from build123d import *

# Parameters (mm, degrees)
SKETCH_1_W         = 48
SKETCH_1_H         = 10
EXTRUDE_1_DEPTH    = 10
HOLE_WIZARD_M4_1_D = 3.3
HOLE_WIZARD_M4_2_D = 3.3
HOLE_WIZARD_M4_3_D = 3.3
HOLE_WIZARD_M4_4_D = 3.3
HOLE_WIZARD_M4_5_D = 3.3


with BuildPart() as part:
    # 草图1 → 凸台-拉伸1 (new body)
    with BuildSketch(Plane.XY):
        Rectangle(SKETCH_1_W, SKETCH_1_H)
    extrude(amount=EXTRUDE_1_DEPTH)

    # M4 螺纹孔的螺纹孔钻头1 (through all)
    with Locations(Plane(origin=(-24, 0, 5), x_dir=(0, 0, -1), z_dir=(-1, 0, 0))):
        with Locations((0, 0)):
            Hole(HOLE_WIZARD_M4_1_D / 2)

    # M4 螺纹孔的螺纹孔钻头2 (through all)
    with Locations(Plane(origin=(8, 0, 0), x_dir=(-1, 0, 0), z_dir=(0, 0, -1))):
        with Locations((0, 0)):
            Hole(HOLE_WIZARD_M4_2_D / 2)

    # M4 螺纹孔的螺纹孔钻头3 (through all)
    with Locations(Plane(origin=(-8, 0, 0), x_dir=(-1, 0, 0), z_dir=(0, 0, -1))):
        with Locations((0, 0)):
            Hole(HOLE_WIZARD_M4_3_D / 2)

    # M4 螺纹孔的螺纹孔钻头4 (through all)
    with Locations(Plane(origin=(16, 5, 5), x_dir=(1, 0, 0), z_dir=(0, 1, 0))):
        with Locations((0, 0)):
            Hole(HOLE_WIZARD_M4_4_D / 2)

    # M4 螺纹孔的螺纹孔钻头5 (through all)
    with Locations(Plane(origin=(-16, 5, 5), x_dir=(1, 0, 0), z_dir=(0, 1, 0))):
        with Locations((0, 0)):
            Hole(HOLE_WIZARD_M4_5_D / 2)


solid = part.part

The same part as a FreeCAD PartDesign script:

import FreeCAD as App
import Part
import Sketcher


def add_polygon(sketch, points):
    """Adds a closed chain of lines whose ends are joined by coincident constraints."""
    first, n = sketch.GeometryCount, len(points)
    for a, b in zip(points, points[1:] + points[:1]):
        sketch.addGeometry(Part.LineSegment(App.Vector(*a, 0), App.Vector(*b, 0)), False)
    for i in range(n):
        sketch.addConstraint(Sketcher.Constraint("Coincident", first + i, 2, first + (i + 1) % n, 1))

doc = App.newDocument("Part")
body = doc.addObject("PartDesign::Body", "Body")

sketch1 = body.newObject("Sketcher::SketchObject", "Sketch")
sketch1.AttachmentSupport = (doc.getObject("XY_Plane"), [""])
sketch1.MapMode = "FlatFace"
add_polygon(sketch1, [(-24, 5), (-24, -5), (24, -5), (24, 5)])
sketch1.addConstraint([
    Sketcher.Constraint("Vertical", 0),
    Sketcher.Constraint("Horizontal", 1),
    Sketcher.Constraint("Vertical", 2),
    Sketcher.Constraint("Horizontal", 3),
    Sketcher.Constraint("Symmetric", 0, 2, 2, 2, -1, 1),
    Sketcher.Constraint("DistanceX", 1, 1, 1, 2, 48.0),
    Sketcher.Constraint("DistanceY", 0, 2, 0, 1, 10.0),
])
pad1 = body.newObject("PartDesign::Pad", "Pad")
pad1.Profile = sketch1
pad1.Length = 10

sketch2 = body.newObject("Sketcher::SketchObject", "Sketch001")
sketch2.AttachmentSupport = (doc.getObject("YZ_Plane"), [""])
sketch2.MapMode = "FlatFace"
sketch2.AttachmentOffset = App.Placement(App.Vector(0, 0, -24), App.Rotation())
sketch2.addGeometry(Part.Circle(App.Vector(0, 5, 0), App.Vector(0, 0, 1), 1.6), False)
sketch2.addConstraint([
    Sketcher.Constraint("PointOnObject", 0, 3, -2),
    Sketcher.Constraint("Diameter", 0, 3.3),
    Sketcher.Constraint("DistanceY", -1, 1, 0, 3, 5.0),
])
doc.recompute()
hole = body.newObject("PartDesign::Hole", "Hole")
hole.Profile = sketch2
hole.ThreadType = "None"
hole.Diameter = 3.3
hole.DepthType = "ThroughAll"
hole.Reversed = True

sketch3 = body.newObject("Sketcher::SketchObject", "Sketch002")
sketch3.AttachmentSupport = (doc.getObject("XY_Plane"), [""])
sketch3.MapMode = "FlatFace"
sketch3.addGeometry(Part.Circle(App.Vector(8, 0, 0), App.Vector(0, 0, 1), 1.6), False)
sketch3.addConstraint([
    Sketcher.Constraint("PointOnObject", 0, 3, -1),
    Sketcher.Constraint("Diameter", 0, 3.3),
    Sketcher.Constraint("DistanceX", -1, 1, 0, 3, 8.0),
])
doc.recompute()
hole2 = body.newObject("PartDesign::Hole", "Hole001")
hole2.Profile = sketch3
hole2.ThreadType = "None"
hole2.Diameter = 3.3
hole2.DepthType = "ThroughAll"
hole2.Reversed = True

sketch4 = body.newObject("Sketcher::SketchObject", "Sketch003")
sketch4.AttachmentSupport = (doc.getObject("XY_Plane"), [""])
sketch4.MapMode = "FlatFace"
sketch4.addGeometry(Part.Circle(App.Vector(-8, 0, 0), App.Vector(0, 0, 1), 1.6), False)
sketch4.addConstraint([
    Sketcher.Constraint("PointOnObject", 0, 3, -1),
    Sketcher.Constraint("Diameter", 0, 3.3),
    Sketcher.Constraint("DistanceX", 0, 3, -1, 1, 8.0),
])
doc.recompute()
hole3 = body.newObject("PartDesign::Hole", "Hole002")
hole3.Profile = sketch4
hole3.ThreadType = "None"
hole3.Diameter = 3.3
hole3.DepthType = "ThroughAll"
hole3.Reversed = True

sketch5 = body.newObject("Sketcher::SketchObject", "Sketch004")
sketch5.AttachmentSupport = (doc.getObject("XZ_Plane"), [""])
sketch5.MapMode = "FlatFace"
sketch5.AttachmentOffset = App.Placement(App.Vector(0, 0, -5), App.Rotation())
sketch5.addGeometry(Part.Circle(App.Vector(16, 5, 0), App.Vector(0, 0, 1), 1.6), False)
sketch5.addConstraint([
    Sketcher.Constraint("Diameter", 0, 3.3),
    Sketcher.Constraint("DistanceX", -1, 1, 0, 3, 16.0),
    Sketcher.Constraint("DistanceY", -1, 1, 0, 3, 5.0),
])
doc.recompute()
hole4 = body.newObject("PartDesign::Hole", "Hole003")
hole4.Profile = sketch5
hole4.ThreadType = "None"
hole4.Diameter = 3.3
hole4.DepthType = "ThroughAll"
hole4.Reversed = True

sketch6 = body.newObject("Sketcher::SketchObject", "Sketch005")
sketch6.AttachmentSupport = (doc.getObject("XZ_Plane"), [""])
sketch6.MapMode = "FlatFace"
sketch6.AttachmentOffset = App.Placement(App.Vector(0, 0, -5), App.Rotation())
sketch6.addGeometry(Part.Circle(App.Vector(-16, 5, 0), App.Vector(0, 0, 1), 1.6), False)
sketch6.addConstraint([
    Sketcher.Constraint("Diameter", 0, 3.3),
    Sketcher.Constraint("DistanceX", 0, 3, -1, 1, 16.0),
    Sketcher.Constraint("DistanceY", -1, 1, 0, 3, 5.0),
])
doc.recompute()
hole5 = body.newObject("PartDesign::Hole", "Hole004")
hole5.Profile = sketch6
hole5.ThreadType = "None"
hole5.Diameter = 3.3
hole5.DepthType = "ThroughAll"
hole5.Reversed = True

doc.recompute()
